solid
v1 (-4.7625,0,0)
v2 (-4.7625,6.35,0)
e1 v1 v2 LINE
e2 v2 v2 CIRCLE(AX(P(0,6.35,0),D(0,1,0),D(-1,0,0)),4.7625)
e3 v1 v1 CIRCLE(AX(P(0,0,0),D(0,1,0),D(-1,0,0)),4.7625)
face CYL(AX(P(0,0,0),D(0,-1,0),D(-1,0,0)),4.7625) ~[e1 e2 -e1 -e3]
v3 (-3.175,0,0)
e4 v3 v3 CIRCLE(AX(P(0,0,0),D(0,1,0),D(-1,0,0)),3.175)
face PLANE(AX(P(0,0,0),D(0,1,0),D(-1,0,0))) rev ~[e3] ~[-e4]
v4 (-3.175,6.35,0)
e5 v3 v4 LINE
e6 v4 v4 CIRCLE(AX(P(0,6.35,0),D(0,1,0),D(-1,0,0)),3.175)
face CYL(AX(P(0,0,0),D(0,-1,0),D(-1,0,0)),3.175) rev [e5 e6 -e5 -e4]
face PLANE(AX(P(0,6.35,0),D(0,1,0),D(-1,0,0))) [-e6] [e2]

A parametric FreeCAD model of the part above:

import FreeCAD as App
import Part
import Sketcher
Q = App.Units.Quantity

doc = App.newDocument("Part")
params = doc.addObject("Spreadsheet::Sheet", "Params")
for row, (alias, value) in enumerate([
    ("sketch1_diameter", "0.25 in"),
    ("sketch1_diameter2", "0.375 in"),
    ("pad1_length", "0.25 in"),
], start=1):
    params.set(f"A{row}", alias)
    params.set(f"B{row}", "=" + value)
    params.setAlias(f"B{row}", alias)

body = doc.addObject("PartDesign::Body", "Body")

# Sketch on XZ plane
sketch1 = body.newObject("Sketcher::SketchObject", "Sketch")
sketch1.AttachmentSupport = (doc.getObject("XZ_Plane"), [""])
sketch1.MapMode = "FlatFace"
sketch1.addGeometry([
    Part.Circle(App.Vector(0, 0, 0), App.Vector(0, 0, 1), 4.7625),
    Part.Circle(App.Vector(0, 0, 0), App.Vector(0, 0, 1), 3.175),
], False)
sketch1.addConstraint([
    Sketcher.Constraint("Coincident", 0, 3, -1, 1),
    Sketcher.Constraint("Coincident", 1, 3, -1, 1),
    Sketcher.Constraint("Diameter", 1, Q("0.25 in")),
    Sketcher.Constraint("Diameter", 0, Q("0.375 in")),
])
sketch1.setExpression("Constraints[2]", "Params.sketch1_diameter")
sketch1.setExpression("Constraints[3]", "Params.sketch1_diameter2")
pad1 = body.newObject("PartDesign::Pad", "Pad")
pad1.Profile = sketch1
pad1.setExpression("Length", "Params.pad1_length")
pad1.Reversed = True

doc.recompute()
